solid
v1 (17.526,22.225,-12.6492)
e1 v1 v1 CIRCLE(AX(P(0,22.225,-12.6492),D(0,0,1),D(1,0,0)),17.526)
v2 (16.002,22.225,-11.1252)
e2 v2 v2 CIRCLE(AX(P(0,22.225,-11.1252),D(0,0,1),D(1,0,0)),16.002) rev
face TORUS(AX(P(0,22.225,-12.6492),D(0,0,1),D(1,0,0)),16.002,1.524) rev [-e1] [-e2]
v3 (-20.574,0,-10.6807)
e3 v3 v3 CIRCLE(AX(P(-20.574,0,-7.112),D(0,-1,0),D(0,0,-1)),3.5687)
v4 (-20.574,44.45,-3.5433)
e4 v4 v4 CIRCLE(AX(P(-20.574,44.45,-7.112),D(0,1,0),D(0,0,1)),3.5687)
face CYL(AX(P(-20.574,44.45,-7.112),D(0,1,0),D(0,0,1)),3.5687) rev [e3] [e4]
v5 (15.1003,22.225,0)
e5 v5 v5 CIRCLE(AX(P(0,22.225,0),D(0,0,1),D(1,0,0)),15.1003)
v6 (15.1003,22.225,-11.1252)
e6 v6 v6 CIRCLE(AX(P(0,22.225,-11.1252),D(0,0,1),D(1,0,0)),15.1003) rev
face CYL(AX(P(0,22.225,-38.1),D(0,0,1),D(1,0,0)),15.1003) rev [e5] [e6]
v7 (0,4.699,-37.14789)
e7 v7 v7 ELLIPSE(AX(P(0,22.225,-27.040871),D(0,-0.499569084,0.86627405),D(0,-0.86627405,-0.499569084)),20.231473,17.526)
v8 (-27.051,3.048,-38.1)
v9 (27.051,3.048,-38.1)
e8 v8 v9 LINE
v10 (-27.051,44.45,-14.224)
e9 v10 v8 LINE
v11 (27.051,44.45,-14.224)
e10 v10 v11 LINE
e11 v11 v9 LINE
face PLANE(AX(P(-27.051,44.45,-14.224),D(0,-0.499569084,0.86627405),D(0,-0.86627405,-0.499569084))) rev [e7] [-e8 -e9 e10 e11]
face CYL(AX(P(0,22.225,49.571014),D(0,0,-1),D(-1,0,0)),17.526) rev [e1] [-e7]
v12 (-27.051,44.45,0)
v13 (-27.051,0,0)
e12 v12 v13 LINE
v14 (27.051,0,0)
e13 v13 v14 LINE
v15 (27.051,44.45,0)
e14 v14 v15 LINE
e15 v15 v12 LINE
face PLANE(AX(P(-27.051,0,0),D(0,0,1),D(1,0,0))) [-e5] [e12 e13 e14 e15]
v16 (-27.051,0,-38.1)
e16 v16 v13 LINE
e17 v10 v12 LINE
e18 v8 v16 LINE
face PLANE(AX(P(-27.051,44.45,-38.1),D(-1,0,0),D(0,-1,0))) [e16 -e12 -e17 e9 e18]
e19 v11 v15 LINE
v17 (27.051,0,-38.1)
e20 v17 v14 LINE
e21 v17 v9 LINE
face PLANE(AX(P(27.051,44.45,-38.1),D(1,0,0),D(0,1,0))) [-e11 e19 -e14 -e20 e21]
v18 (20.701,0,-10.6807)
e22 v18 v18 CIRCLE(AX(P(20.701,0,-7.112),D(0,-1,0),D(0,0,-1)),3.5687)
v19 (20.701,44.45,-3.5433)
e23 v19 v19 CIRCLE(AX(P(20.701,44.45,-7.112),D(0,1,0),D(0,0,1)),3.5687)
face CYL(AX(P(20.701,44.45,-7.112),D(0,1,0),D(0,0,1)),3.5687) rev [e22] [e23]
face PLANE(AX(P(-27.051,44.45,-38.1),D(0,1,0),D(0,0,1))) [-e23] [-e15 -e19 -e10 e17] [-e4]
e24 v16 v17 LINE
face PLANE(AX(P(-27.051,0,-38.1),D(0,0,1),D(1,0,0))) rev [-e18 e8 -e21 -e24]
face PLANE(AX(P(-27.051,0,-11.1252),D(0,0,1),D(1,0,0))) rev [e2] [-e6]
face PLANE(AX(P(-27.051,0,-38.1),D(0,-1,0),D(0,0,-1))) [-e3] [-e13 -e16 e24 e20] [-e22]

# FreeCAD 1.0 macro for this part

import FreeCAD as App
import Part
import Sketcher

V = App.Vector
Q = App.Units.Quantity


def edges_at(feature, points):
    """Names of the edges that pass closest to the given points."""
    edges = feature.Shape.Edges
    near = lambda p: min(range(len(edges)), key=lambda i: edges[i].distToShape(Part.Vertex(*p))[0])
    return sorted({f"Edge{near(p) + 1}" for p in points})

doc = App.newDocument("Part")
body = doc.addObject("PartDesign::Body", "Body")

sketch1 = body.newObject("Sketcher::SketchObject", "Sketch")
sketch1.AttachmentSupport = (doc.getObject("XY_Plane"), [""])
sketch1.MapMode = "FlatFace"
sketch1.addGeometry(Part.LineSegment(V(-27, 44, 0), V(-27, 0, 0)), False)
sketch1.addGeometry(Part.LineSegment(V(-27, 0, 0), V(27, 0, 0)), False)
sketch1.addGeometry(Part.LineSegment(V(27, 0, 0), V(27, 44, 0)), False)
sketch1.addGeometry(Part.LineSegment(V(27, 44, 0), V(-27, 44, 0)), False)
sketch1.addGeometry(Part.Circle(V(0, 22, 0), V(0, 0, 1), 15), False)
sketch1.addConstraint(Sketcher.Constraint("Coincident", 0, 2, 1, 1))
sketch1.addConstraint(Sketcher.Constraint("Coincident", 1, 2, 2, 1))
sketch1.addConstraint(Sketcher.Constraint("Coincident", 2, 2, 3, 1))
sketch1.addConstraint(Sketcher.Constraint("Coincident", 3, 2, 0, 1))
sketch1.addConstraint(Sketcher.Constraint("Vertical", 0))
sketch1.addConstraint(Sketcher.Constraint("Horizontal", 1))
sketch1.addConstraint(Sketcher.Constraint("Vertical", 2))
sketch1.addConstraint(Sketcher.Constraint("Horizontal", 3))
sketch1.addConstraint(Sketcher.Constraint("Symmetric", 0, 2, 1, 2, -1, 1))
sketch1.addConstraint(Sketcher.Constraint("PointOnObject", 4, 3, -2))
sketch1.addConstraint(Sketcher.Constraint("Diameter", 4, Q("1.189 in")))
sketch1.addConstraint(Sketcher.Constraint("DistanceX", 1, 1, 1, 2, Q("2.13 in")))
sketch1.addConstraint(Sketcher.Constraint("DistanceY", 0, 2, 0, 1, Q("1.75 in")))
sketch1.addConstraint(Sketcher.Constraint("DistanceY", -1, 1, 4, 3, Q("0.875 in")))
pad1 = body.newObject("PartDesign::Pad", "Pad")
pad1.Profile = sketch1
pad1.Length = Q("1.5 in")
pad1.Reversed = True

sketch2 = body.newObject("Sketcher::SketchObject", "Sketch001")
sketch2.AttachmentSupport = (doc.getObject("YZ_Plane"), [""])
sketch2.MapMode = "FlatFace"
sketch2.AttachmentOffset = App.Placement(V(0, 0, 1.065 * 25.4), App.Rotation())
sketch2.addGeometry(Part.LineSegment(V(44, -14, 0), V(3, -38, 0)), False)
sketch2.addGeometry(Part.LineSegment(V(3, -38, 0), V(44, -38, 0)), False)
sketch2.addGeometry(Part.LineSegment(V(44, -38, 0), V(44, -14, 0)), False)
sketch2.addConstraint(Sketcher.Constraint("Coincident", 0, 2, 1, 1))
sketch2.addConstraint(Sketcher.Constraint("Coincident", 1, 2, 2, 1))
sketch2.addConstraint(Sketcher.Constraint("Coincident", 2, 2, 0, 1))
sketch2.addConstraint(Sketcher.Constraint("Horizontal", 1))
sketch2.addConstraint(Sketcher.Constraint("Vertical", 2))
sketch2.addConstraint(Sketcher.Constraint("DistanceX", 1, 1, 1, 2, Q("1.63 in")))
sketch2.addConstraint(Sketcher.Constraint("DistanceY", 2, 1, 2, 2, Q("0.94 in")))
sketch2.addConstraint(Sketcher.Constraint("DistanceY", 0, 2, -1, 1, Q("1.5 in")))
sketch2.addConstraint(Sketcher.Constraint("DistanceX", -1, 1, 0, 2, Q("0.12 in")))
pocket1 = body.newObject("PartDesign::Pocket", "Pocket")
pocket1.Profile = sketch2
pocket1.Type = "ThroughAll"

sketch3 = body.newObject("Sketcher::SketchObject", "Sketch002")
sketch3.AttachmentSupport = (doc.getObject("XY_Plane"), [""])
sketch3.MapMode = "FlatFace"
sketch3.AttachmentOffset = App.Placement(V(0, 0, -1.5 * 25.4), App.Rotation())
sketch3.addGeometry(Part.Circle(V(0, 22, 0), V(0, 0, 1), 18), False)
sketch3.addConstraint(Sketcher.Constraint("PointOnObject", 0, 3, -2))
sketch3.addConstraint(Sketcher.Constraint("Diameter", 0, Q("1.38 in")))
sketch3.addConstraint(Sketcher.Constraint("DistanceY", -1, 1, 0, 3, Q("0.875 in")))
pocket2 = body.newObject("PartDesign::Pocket", "Pocket001")
pocket2.Profile = sketch3
pocket2.Length = Q("1.062 in")
pocket2.Reversed = True
doc.recompute()

fillet = body.newObject("PartDesign::Fillet", "Fillet")
fillet.Base = (pocket2, edges_at(pocket2, [(0, 39.751, -11.125)]))
fillet.Radius = Q("0.06 in")

sketch4 = body.newObject("Sketcher::SketchObject", "Sketch003")
sketch4.AttachmentSupport = (doc.getObject("XZ_Plane"), [""])
sketch4.MapMode = "FlatFace"
sketch4.AttachmentOffset = App.Placement(V(0, 0, -1.75 * 25.4), App.Rotation())
sketch4.addGeometry(Part.Circle(V(-20.6, -7.1, 0), V(0, 0, 1), 3.6), False)
sketch4.addGeometry(Part.Circle(V(20.7, -7.1, 0), V(0, 0, 1), 3.6), False)
sketch4.addConstraint(Sketcher.Constraint("Equal", 0, 1))
sketch4.addConstraint(Sketcher.Constraint("Horizontal", 0, 3, 1, 3))
sketch4.addConstraint(Sketcher.Constraint("Diameter", 0, Q("0.281 in")))
sketch4.addConstraint(Sketcher.Constraint("DistanceX", 0, 3, -1, 1, Q("0.81 in")))
sketch4.addConstraint(Sketcher.Constraint("DistanceY", 0, 3, -1, 1, Q("0.28 in")))
sketch4.addConstraint(Sketcher.Constraint("DistanceX", -1, 1, 1, 3, Q("0.815 in")))
doc.recompute()
hole = body.newObject("PartDesign::Hole", "Hole")
hole.Profile = sketch4
hole.ThreadType = "None"
hole.Diameter = Q("0.281 in")
hole.DepthType = "Dimension"
hole.Depth = Q("1.75 in")
hole.DrillPoint = "Flat"
hole.Reversed = True

doc.recompute()
